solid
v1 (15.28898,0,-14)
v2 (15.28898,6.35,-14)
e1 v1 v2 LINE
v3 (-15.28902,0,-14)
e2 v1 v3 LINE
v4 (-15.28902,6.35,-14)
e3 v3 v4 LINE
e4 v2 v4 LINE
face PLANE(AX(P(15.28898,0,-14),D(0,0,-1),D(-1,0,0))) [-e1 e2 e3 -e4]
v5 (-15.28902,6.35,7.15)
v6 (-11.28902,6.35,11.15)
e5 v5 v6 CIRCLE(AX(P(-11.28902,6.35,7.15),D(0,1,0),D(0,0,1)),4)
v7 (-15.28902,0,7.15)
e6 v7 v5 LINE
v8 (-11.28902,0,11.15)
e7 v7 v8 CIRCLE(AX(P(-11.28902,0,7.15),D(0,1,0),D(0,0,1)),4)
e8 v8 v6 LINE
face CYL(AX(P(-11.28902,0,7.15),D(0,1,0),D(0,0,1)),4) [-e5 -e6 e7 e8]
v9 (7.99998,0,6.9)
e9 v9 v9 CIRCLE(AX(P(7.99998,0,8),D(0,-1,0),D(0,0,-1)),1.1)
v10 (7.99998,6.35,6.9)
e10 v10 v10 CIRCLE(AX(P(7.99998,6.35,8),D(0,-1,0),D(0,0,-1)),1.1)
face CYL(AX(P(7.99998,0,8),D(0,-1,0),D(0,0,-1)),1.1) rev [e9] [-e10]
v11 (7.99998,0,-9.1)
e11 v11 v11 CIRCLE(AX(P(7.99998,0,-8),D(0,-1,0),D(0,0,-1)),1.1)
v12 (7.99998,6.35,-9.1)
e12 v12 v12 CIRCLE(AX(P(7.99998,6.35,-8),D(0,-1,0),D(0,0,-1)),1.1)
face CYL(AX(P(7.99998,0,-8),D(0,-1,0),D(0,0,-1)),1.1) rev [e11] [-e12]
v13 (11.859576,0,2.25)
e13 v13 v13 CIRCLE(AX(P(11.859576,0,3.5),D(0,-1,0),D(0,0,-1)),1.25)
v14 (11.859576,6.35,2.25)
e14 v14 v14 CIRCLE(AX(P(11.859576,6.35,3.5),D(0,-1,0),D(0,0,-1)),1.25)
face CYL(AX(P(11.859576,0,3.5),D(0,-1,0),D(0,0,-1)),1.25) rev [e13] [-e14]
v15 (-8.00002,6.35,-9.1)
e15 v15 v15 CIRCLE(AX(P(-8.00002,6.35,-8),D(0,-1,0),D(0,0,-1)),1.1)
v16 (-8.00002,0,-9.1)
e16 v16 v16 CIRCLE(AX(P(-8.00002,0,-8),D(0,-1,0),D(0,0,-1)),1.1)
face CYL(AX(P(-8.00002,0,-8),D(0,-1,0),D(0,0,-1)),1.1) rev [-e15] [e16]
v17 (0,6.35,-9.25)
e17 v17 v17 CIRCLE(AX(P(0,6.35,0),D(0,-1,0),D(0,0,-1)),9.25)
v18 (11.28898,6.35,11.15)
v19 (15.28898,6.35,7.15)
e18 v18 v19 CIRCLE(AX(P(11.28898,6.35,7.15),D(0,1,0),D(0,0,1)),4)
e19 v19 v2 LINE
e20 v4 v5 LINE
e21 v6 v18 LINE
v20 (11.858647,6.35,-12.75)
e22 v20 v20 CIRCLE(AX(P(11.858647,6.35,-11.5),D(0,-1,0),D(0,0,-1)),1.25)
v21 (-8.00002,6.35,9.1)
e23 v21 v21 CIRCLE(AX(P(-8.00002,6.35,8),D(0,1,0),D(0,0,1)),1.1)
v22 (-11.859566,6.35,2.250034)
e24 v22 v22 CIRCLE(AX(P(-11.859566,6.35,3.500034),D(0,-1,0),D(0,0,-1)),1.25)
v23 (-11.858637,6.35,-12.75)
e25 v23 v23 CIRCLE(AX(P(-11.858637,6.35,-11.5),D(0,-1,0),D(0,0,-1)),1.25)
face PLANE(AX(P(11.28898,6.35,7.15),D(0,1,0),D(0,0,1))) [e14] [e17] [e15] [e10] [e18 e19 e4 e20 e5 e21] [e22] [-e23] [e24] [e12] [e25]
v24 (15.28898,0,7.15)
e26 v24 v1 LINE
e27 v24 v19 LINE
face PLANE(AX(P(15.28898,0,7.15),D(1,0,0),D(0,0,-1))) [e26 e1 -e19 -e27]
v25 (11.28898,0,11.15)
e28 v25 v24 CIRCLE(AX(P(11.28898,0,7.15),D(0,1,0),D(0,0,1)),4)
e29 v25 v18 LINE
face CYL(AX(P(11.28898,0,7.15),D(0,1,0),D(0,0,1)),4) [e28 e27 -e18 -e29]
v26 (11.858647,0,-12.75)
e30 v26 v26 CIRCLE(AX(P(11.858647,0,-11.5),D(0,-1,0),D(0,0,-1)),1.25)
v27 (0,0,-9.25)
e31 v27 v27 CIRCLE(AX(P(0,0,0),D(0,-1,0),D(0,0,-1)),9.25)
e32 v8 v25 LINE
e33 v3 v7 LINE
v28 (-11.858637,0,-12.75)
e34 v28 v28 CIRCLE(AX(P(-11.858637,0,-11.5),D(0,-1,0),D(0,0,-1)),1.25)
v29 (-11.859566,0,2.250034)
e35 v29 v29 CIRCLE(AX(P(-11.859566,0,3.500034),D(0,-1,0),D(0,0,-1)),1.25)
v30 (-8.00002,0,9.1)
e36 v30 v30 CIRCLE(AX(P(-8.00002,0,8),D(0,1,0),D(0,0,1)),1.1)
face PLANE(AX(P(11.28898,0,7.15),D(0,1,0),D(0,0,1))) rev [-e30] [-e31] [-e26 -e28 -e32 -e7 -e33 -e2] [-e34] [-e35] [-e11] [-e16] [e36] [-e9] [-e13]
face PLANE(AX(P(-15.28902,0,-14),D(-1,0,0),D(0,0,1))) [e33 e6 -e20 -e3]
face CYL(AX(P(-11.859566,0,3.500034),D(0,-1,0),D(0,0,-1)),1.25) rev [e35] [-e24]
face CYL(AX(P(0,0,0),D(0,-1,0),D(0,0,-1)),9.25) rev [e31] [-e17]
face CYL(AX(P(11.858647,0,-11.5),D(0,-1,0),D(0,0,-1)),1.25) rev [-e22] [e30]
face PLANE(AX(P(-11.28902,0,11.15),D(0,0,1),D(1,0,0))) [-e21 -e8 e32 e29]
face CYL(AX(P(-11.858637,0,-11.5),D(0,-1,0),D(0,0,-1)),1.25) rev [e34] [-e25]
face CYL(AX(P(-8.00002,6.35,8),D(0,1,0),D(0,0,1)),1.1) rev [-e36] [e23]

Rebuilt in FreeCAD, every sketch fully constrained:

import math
import FreeCAD as App
import Part
import Sketcher

doc = App.newDocument("Part")
body = doc.addObject("PartDesign::Body", "Body")

# Sketch on XZ plane
sketch1 = body.newObject("Sketcher::SketchObject", "Sketch")
sketch1.AttachmentSupport = (doc.getObject("XZ_Plane"), [""])
sketch1.MapMode = "FlatFace"
sketch1.AttachmentOffset = App.Placement(App.Vector(0, 0, -6.35), App.Rotation())
sketch1.addGeometry([
    Part.LineSegment(App.Vector(15.28898, 7.15, 0), App.Vector(15.28898, -14, 0)),  # 0
    Part.LineSegment(App.Vector(15.28898, -14, 0), App.Vector(-15.28902, -14, 0)),  # 1
    Part.LineSegment(App.Vector(-15.28902, -14, 0), App.Vector(-15.28902, 7.15, 0)),  # 2
    Part.ArcOfCircle(Part.Circle(App.Vector(-11.28902, 7.15, 0), App.Vector(0, 0, 1), 4), math.radians(90), math.radians(180)),  # 3
    Part.LineSegment(App.Vector(-11.28902, 11.15, 0), App.Vector(11.28898, 11.15, 0)),  # 4
    Part.ArcOfCircle(Part.Circle(App.Vector(11.28898, 7.15, 0), App.Vector(0, 0, 1), 4), math.radians(0), math.radians(90)),  # 5
], False)
sketch1.addConstraint([
    Sketcher.Constraint("Coincident", 0, 2, 1, 1),
    Sketcher.Constraint("Coincident", 1, 2, 2, 1),
    Sketcher.Constraint("Tangent", 2, 2, 3, 2),
    Sketcher.Constraint("Tangent", 3, 1, 4, 1),
    Sketcher.Constraint("Tangent", 4, 2, 5, 2),
    Sketcher.Constraint("Tangent", 5, 1, 0, 1),
    Sketcher.Constraint("Vertical", 0),
    Sketcher.Constraint("Horizontal", 1),
    Sketcher.Constraint("Vertical", 2),
    Sketcher.Constraint("Horizontal", 4),
    Sketcher.Constraint("Equal", 3, 5),
    Sketcher.Constraint("Radius", 3, 4.0),
    Sketcher.Constraint("DistanceY", 0, 2, -1, 1, 14.0),
    Sketcher.Constraint("DistanceY", 0, 2, 0, 1, 21.15),
    Sketcher.Constraint("DistanceX", 1, 2, 1, 1, 30.578),
    Sketcher.Constraint("DistanceX", 3, 3, -1, 1, 11.28902),
])
pad1 = body.newObject("PartDesign::Pad", "Pad")
pad1.Profile = sketch1
pad1.Length = 6.35

# Sketch on XZ plane
sketch2 = body.newObject("Sketcher::SketchObject", "Sketch001")
sketch2.AttachmentSupport = (doc.getObject("XZ_Plane"), [""])
sketch2.MapMode = "FlatFace"
sketch2.addGeometry(Part.Circle(App.Vector(7.99998, 8, 0), App.Vector(0, 0, 1), 1.1), False)
sketch2.addConstraint([
    Sketcher.Constraint("Diameter", 0, 2.2),
    Sketcher.Constraint("DistanceY", -1, 1, 0, 3, 8.0),
    Sketcher.Constraint("DistanceX", -1, 1, 0, 3, 7.99998),
])
doc.recompute()
hole = body.newObject("PartDesign::Hole", "Hole")
hole.Profile = sketch2
hole.ThreadType = "None"
hole.Diameter = 2.2
hole.DepthType = "Dimension"
hole.Depth = 6.35
hole.DrillPoint = "Flat"

# Sketch on XZ plane
sketch3 = body.newObject("Sketcher::SketchObject", "Sketch002")
sketch3.AttachmentSupport = (doc.getObject("XZ_Plane"), [""])
sketch3.MapMode = "FlatFace"
sketch3.addGeometry(Part.Circle(App.Vector(-8.00002, -8, 0), App.Vector(0, 0, 1), 1.1), False)
sketch3.addConstraint([
    Sketcher.Constraint("Diameter", 0, 2.2),
    Sketcher.Constraint("DistanceY", 0, 3, -1, 1, 8.0),
    Sketcher.Constraint("DistanceX", 0, 3, -1, 1, 8.00002),
])
doc.recompute()
hole2 = body.newObject("PartDesign::Hole", "Hole001")
hole2.Profile = sketch3
hole2.ThreadType = "None"
hole2.Diameter = 2.2
hole2.DepthType = "Dimension"
hole2.Depth = 6.35
hole2.DrillPoint = "Flat"

# Sketch on XZ plane
sketch4 = body.newObject("Sketcher::SketchObject", "Sketch003")
sketch4.AttachmentSupport = (doc.getObject("XZ_Plane"), [""])
sketch4.MapMode = "FlatFace"
sketch4.addGeometry(Part.Circle(App.Vector(7.99998, -8, 0), App.Vector(0, 0, 1), 1.1), False)
sketch4.addConstraint([
    Sketcher.Constraint("Diameter", 0, 2.2),
    Sketcher.Constraint("DistanceY", 0, 3, -1, 1, 8.0),
    Sketcher.Constraint("DistanceX", -1, 1, 0, 3, 7.99998),
])
doc.recompute()
hole3 = body.newObject("PartDesign::Hole", "Hole002")
hole3.Profile = sketch4
hole3.ThreadType = "None"
hole3.Diameter = 2.2
hole3.DepthType = "Dimension"
hole3.Depth = 6.35
hole3.DrillPoint = "Flat"

# Sketch on XZ plane
sketch5 = body.newObject("Sketcher::SketchObject", "Sketch004")
sketch5.AttachmentSupport = (doc.getObject("XZ_Plane"), [""])
sketch5.MapMode = "FlatFace"
sketch5.AttachmentOffset = App.Placement(App.Vector(0, 0, -6.35), App.Rotation())
sketch5.addGeometry(Part.Circle(App.Vector(-8.00002, 8, 0), App.Vector(0, 0, 1), 1.1), False)
sketch5.addConstraint([
    Sketcher.Constraint("Diameter", 0, 2.2),
    Sketcher.Constraint("DistanceY", -1, 1, 0, 3, 8.0),
    Sketcher.Constraint("DistanceX", 0, 3, -1, 1, 8.00002),
])
doc.recompute()
hole4 = body.newObject("PartDesign::Hole", "Hole003")
hole4.Profile = sketch5
hole4.ThreadType = "None"
hole4.Diameter = 2.2
hole4.DepthType = "Dimension"
hole4.Depth = 6.35
hole4.DrillPoint = "Flat"
hole4.Reversed = True

# Sketch on XZ plane
sketch6 = body.newObject("Sketcher::SketchObject", "Sketch005")
sketch6.AttachmentSupport = (doc.getObject("XZ_Plane"), [""])
sketch6.MapMode = "FlatFace"
sketch6.addGeometry(Part.Circle(App.Vector(0, 0, 0), App.Vector(0, 0, 1), 9.25), False)
sketch6.addConstraint([
    Sketcher.Constraint("Coincident", 0, 3, -1, 1),
    Sketcher.Constraint("Diameter", 0, 18.5),
])
doc.recompute()
hole5 = body.newObject("PartDesign::Hole", "Hole004")
hole5.Profile = sketch6
hole5.ThreadType = "None"
hole5.Diameter = 18.5
hole5.DepthType = "Dimension"
hole5.Depth = 6.35
hole5.DrillPoint = "Flat"

# Sketch on XZ plane
sketch7 = body.newObject("Sketcher::SketchObject", "Sketch006")
sketch7.AttachmentSupport = (doc.getObject("XZ_Plane"), [""])
sketch7.MapMode = "FlatFace"
sketch7.addGeometry(Part.Circle(App.Vector(-11.858637, -11.5, 0), App.Vector(0, 0, 1), 1.25), False)
sketch7.addConstraint([
    Sketcher.Constraint("Diameter", 0, 2.5),
    Sketcher.Constraint("DistanceY", 0, 3, -1, 1, 11.5),
    Sketcher.Constraint("DistanceX", 0, 3, -1, 1, 11.858637),
])
doc.recompute()
hole6 = body.newObject("PartDesign::Hole", "Hole005")
hole6.Profile = sketch7
hole6.ThreadType = "None"
hole6.Diameter = 2.5
hole6.DepthType = "ThroughAll"

# Sketch on XZ plane
sketch8 = body.newObject("Sketcher::SketchObject", "Sketch007")
sketch8.AttachmentSupport = (doc.getObject("XZ_Plane"), [""])
sketch8.MapMode = "FlatFace"
sketch8.addGeometry(Part.Circle(App.Vector(-11.859566, 3.500034, 0), App.Vector(0, 0, 1), 1.25), False)
sketch8.addConstraint([
    Sketcher.Constraint("Diameter", 0, 2.5),
    Sketcher.Constraint("DistanceX", 0, 3, -1, 1, 11.859566),
    Sketcher.Constraint("DistanceY", -1, 1, 0, 3, 3.500034),
])
doc.recompute()
hole7 = body.newObject("PartDesign::Hole", "Hole006")
hole7.Profile = sketch8
hole7.ThreadType = "None"
hole7.Diameter = 2.5
hole7.DepthType = "ThroughAll"

# Sketch on XZ plane
sketch9 = body.newObject("Sketcher::SketchObject", "Sketch008")
sketch9.AttachmentSupport = (doc.getObject("XZ_Plane"), [""])
sketch9.MapMode = "FlatFace"
sketch9.addGeometry(Part.Circle(App.Vector(11.858647, -11.5, 0), App.Vector(0, 0, 1), 1.25), False)
sketch9.addConstraint([
    Sketcher.Constraint("Diameter", 0, 2.5),
    Sketcher.Constraint("DistanceY", 0, 3, -1, 1, 11.5),
    Sketcher.Constraint("DistanceX", -1, 1, 0, 3, 11.858647),
])
doc.recompute()
hole8 = body.newObject("PartDesign::Hole", "Hole007")
hole8.Profile = sketch9
hole8.ThreadType = "None"
hole8.Diameter = 2.5
hole8.DepthType = "ThroughAll"

# Sketch on XZ plane
sketch10 = body.newObject("Sketcher::SketchObject", "Sketch009")
sketch10.AttachmentSupport = (doc.getObject("XZ_Plane"), [""])
sketch10.MapMode = "FlatFace"
sketch10.addGeometry(Part.Circle(App.Vector(11.859576, 3.5, 0), App.Vector(0, 0, 1), 1.25), False)
sketch10.addConstraint([
    Sketcher.Constraint("Diameter", 0, 2.5),
    Sketcher.Constraint("DistanceY", -1, 1, 0, 3, 3.5),
    Sketcher.Constraint("DistanceX", -1, 1, 0, 3, 11.859576),
])
doc.recompute()
hole9 = body.newObject("PartDesign::Hole", "Hole008")
hole9.Profile = sketch10
hole9.ThreadType = "None"
hole9.Diameter = 2.5
hole9.DepthType = "ThroughAll"

doc.recompute()
